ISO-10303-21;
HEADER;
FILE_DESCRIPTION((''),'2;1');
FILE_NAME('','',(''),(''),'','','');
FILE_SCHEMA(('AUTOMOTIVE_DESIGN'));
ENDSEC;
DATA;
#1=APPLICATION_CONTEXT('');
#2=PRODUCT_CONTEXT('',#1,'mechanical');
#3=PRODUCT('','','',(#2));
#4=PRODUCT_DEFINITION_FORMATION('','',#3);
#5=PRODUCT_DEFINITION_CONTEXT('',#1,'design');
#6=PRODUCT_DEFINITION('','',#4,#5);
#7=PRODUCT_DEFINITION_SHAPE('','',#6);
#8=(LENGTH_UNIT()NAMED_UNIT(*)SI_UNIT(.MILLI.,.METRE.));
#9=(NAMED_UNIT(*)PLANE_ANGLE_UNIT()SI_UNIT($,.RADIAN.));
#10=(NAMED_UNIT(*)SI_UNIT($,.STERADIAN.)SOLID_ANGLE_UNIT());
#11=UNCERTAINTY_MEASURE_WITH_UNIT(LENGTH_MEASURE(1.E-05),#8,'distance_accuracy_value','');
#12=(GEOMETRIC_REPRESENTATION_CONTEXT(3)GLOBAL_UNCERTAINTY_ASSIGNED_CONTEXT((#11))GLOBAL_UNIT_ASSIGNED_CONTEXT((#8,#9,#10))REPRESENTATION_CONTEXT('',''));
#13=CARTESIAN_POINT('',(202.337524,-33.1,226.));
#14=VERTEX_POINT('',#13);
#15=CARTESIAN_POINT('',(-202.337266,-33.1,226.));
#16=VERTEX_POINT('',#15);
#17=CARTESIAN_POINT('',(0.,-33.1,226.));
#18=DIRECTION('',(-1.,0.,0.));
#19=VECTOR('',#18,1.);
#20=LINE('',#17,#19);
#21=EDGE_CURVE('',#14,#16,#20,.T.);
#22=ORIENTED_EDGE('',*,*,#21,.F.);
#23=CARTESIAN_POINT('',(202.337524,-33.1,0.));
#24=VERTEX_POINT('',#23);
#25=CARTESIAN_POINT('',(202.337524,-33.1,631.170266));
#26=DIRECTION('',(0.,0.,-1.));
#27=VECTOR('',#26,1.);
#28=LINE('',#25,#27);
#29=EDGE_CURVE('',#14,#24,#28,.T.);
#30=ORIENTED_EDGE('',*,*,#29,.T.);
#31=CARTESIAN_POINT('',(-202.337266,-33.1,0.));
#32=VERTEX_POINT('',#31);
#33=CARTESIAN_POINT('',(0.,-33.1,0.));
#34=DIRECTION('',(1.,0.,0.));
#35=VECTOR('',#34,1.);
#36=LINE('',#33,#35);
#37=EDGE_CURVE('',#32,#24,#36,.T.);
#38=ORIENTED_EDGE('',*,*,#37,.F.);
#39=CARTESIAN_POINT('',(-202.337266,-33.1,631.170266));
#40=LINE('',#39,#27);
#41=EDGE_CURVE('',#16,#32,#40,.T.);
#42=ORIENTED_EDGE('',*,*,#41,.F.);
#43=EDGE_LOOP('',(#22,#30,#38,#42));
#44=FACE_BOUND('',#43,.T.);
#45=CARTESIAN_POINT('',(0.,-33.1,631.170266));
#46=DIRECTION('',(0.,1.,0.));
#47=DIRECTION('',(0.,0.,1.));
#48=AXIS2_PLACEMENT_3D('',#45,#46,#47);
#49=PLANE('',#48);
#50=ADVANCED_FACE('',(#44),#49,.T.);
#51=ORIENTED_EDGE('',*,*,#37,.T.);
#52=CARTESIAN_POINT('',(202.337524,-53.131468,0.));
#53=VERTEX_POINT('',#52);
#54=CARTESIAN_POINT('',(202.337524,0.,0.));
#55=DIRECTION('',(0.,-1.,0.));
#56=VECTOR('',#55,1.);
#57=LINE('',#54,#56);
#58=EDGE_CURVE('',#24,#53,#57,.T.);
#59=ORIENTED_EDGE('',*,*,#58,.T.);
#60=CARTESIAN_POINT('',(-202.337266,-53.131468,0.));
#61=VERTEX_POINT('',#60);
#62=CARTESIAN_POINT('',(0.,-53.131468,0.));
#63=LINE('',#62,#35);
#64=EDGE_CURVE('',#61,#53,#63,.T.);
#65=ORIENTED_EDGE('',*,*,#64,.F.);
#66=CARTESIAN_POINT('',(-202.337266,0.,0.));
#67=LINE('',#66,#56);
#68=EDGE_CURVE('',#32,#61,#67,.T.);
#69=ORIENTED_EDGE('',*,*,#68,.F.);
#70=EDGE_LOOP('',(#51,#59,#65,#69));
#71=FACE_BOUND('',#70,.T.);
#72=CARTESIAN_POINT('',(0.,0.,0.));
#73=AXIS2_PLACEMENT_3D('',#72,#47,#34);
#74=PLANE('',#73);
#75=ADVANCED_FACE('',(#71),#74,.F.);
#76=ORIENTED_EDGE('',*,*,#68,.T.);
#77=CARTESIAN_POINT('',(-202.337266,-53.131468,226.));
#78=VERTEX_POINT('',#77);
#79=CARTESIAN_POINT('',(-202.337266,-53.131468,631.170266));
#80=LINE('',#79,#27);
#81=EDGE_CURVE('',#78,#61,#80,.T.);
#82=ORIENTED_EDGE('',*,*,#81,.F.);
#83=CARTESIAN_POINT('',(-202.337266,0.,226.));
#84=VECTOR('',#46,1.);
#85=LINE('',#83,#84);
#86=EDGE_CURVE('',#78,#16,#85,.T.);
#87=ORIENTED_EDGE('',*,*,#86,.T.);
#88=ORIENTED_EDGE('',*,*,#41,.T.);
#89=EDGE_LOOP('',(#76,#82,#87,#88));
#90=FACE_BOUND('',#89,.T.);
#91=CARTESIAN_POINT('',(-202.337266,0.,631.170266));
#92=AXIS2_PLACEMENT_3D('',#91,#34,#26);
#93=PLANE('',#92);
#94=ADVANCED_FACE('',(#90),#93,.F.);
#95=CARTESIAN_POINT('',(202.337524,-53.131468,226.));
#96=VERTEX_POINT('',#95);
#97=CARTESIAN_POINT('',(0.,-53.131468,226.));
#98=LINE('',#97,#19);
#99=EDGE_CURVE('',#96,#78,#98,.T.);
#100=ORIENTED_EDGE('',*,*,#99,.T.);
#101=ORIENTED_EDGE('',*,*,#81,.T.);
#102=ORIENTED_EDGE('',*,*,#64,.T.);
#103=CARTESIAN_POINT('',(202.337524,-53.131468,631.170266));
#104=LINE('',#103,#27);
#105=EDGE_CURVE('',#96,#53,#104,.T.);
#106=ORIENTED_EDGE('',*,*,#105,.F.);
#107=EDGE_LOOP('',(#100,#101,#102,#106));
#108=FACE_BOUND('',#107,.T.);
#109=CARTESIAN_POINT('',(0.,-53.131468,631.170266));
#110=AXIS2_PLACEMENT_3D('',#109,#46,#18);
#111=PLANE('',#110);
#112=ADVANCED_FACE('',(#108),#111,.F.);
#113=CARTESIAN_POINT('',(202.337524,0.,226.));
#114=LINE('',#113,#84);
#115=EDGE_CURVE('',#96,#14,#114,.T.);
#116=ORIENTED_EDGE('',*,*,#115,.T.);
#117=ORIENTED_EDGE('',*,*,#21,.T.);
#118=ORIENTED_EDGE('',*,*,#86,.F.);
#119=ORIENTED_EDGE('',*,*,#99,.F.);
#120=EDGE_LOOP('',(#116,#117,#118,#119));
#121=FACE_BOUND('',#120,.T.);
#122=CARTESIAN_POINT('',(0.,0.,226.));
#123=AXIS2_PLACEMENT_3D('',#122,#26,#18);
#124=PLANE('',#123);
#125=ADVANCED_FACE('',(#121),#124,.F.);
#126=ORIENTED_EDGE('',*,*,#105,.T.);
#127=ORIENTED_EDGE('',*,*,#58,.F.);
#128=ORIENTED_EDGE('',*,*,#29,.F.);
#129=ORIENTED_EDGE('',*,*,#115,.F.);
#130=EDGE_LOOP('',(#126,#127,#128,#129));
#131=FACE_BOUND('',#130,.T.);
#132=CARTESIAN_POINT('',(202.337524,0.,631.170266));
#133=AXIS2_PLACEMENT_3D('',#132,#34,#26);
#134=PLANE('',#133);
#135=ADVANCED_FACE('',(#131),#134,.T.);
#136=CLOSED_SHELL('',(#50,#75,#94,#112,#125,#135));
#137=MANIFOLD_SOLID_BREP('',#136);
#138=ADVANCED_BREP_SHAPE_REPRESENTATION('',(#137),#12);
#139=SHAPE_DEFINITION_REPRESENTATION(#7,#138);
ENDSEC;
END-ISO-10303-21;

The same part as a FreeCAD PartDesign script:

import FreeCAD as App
import Part
import Sketcher
from FreeCAD import Vector


def add_polygon(sketch, points):
    """Adds a closed chain of lines whose ends are joined by coincident constraints."""
    first, n = sketch.GeometryCount, len(points)
    for a, b in zip(points, points[1:] + points[:1]):
        sketch.addGeometry(Part.LineSegment(App.Vector(*a, 0), App.Vector(*b, 0)), False)
    for i in range(n):
        sketch.addConstraint(Sketcher.Constraint("Coincident", first + i, 2, first + (i + 1) % n, 1))

doc = App.newDocument("Part")
body = doc.addObject("PartDesign::Body", "Body")

# Sketch on XY plane
sketch1 = body.newObject("Sketcher::SketchObject", "Sketch")
sketch1.AttachmentSupport = (doc.getObject("XY_Plane"), [""])
sketch1.MapMode = "FlatFace"
add_polygon(sketch1, [(-202, -33), (-202, -53), (202, -53), (202, -33)])  # lines 0-3
sketch1.addConstraint([
    Sketcher.Constraint("Vertical", 0),
    Sketcher.Constraint("Horizontal", 1),
    Sketcher.Constraint("Vertical", 2),
    Sketcher.Constraint("Horizontal", 3),
    Sketcher.Constraint("DistanceY", 2, 2, -1, 1, 33.1),
    Sketcher.Constraint("DistanceX", 1, 1, 1, 2, 404.674789),
    Sketcher.Constraint("DistanceY", 0, 2, 0, 1, 20.031468),
    Sketcher.Constraint("DistanceX", 0, 2, -1, 1, 202.337266),
])
pad1 = body.newObject("PartDesign::Pad", "Pad")
pad1.Profile = sketch1
pad1.Length = 226

doc.recompute()
